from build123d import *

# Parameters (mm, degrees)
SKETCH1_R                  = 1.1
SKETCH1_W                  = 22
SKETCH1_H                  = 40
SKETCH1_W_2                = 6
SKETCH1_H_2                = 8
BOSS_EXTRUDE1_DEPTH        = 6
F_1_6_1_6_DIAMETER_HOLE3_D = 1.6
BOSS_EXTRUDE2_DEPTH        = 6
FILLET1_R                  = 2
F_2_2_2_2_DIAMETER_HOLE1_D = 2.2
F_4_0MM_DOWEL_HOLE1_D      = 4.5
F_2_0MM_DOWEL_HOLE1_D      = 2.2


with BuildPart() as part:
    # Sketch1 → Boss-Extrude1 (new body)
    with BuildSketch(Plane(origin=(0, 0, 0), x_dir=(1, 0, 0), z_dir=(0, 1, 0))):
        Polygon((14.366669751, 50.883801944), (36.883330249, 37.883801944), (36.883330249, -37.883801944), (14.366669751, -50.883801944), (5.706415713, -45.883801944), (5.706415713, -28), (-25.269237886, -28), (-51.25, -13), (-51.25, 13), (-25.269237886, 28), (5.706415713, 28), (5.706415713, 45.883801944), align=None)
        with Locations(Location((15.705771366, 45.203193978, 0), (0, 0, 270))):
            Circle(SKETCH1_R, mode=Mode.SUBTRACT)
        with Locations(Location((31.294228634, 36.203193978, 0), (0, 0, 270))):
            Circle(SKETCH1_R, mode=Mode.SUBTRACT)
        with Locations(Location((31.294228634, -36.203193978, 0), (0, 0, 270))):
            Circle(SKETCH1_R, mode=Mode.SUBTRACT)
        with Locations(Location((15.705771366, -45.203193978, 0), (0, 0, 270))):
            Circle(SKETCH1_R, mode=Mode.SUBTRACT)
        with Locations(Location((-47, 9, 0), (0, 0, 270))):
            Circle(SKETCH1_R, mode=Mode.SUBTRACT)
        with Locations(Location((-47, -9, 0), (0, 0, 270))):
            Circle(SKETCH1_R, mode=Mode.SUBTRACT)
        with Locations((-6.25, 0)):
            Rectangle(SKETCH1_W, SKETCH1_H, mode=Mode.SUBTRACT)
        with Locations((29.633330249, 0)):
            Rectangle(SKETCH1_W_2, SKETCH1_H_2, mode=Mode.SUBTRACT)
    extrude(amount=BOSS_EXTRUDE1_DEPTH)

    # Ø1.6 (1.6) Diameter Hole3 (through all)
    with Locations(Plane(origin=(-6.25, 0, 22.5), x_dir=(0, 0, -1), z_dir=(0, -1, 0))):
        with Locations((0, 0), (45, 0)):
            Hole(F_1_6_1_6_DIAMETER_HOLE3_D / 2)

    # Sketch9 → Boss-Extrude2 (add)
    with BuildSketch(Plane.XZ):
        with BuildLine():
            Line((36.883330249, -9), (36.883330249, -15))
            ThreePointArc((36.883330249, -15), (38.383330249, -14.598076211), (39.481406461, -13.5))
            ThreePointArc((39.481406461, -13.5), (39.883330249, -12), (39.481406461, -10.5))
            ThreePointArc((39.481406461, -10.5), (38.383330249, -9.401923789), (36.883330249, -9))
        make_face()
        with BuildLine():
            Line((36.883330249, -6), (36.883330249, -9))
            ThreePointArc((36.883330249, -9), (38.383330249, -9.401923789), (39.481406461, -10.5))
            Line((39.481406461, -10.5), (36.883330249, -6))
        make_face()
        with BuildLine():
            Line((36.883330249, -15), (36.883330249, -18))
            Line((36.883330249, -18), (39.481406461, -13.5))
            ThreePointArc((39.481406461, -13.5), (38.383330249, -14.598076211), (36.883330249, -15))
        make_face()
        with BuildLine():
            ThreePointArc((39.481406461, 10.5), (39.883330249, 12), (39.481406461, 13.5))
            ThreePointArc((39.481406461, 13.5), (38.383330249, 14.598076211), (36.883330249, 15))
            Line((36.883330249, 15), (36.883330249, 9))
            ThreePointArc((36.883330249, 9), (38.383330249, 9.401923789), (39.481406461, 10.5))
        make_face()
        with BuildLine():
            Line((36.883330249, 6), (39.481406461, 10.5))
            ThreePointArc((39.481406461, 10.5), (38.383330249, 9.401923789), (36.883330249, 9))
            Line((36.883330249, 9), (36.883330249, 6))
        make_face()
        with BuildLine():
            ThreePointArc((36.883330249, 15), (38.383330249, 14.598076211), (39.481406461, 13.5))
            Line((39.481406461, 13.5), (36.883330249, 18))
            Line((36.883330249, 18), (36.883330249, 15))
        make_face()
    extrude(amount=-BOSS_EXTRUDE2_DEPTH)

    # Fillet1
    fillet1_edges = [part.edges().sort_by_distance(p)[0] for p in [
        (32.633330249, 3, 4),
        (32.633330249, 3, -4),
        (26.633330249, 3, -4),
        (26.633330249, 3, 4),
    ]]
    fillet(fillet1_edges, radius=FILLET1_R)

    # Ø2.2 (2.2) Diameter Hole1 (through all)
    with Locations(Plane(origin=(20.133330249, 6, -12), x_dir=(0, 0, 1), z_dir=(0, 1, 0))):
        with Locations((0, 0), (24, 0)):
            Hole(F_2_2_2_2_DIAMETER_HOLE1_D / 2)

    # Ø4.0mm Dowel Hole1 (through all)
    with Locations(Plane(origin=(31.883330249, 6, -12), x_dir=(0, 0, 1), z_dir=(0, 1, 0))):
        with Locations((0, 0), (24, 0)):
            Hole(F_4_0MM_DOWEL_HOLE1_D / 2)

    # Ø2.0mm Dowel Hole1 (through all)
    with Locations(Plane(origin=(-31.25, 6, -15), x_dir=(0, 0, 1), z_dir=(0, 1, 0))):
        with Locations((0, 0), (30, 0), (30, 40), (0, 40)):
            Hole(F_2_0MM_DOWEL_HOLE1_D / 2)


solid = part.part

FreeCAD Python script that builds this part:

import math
import FreeCAD as App
import Part
import Sketcher
from FreeCAD import Vector
Q = App.Units.Quantity


def edges_at(feature, points):
    """Names of the edges that pass closest to the given points."""
    edges = feature.Shape.Edges
    near = lambda p: min(range(len(edges)), key=lambda i: edges[i].distToShape(Part.Vertex(*p))[0])
    return sorted({f"Edge{near(p) + 1}" for p in points})


def add_polygon(sketch, points):
    """Adds a closed chain of lines whose ends are joined by coincident constraints."""
    first, n = sketch.GeometryCount, len(points)
    for a, b in zip(points, points[1:] + points[:1]):
        sketch.addGeometry(Part.LineSegment(App.Vector(*a, 0), App.Vector(*b, 0)), False)
    for i in range(n):
        sketch.addConstraint(Sketcher.Constraint("Coincident", first + i, 2, first + (i + 1) % n, 1))

doc = App.newDocument("Part")
body = doc.addObject("PartDesign::Body", "Body")

sketch1 = body.newObject("Sketcher::SketchObject", "Sketch")
sketch1.AttachmentSupport = (doc.getObject("XZ_Plane"), [""])
sketch1.MapMode = "FlatFace"
add_polygon(sketch1, [(36.9, -37.9), (14.4, -50.9), (5.7, -45.9), (5.7, -28), (-25.3, -28), (-51.2, -13), (-51.2, 13), (-25.3, 28), (5.7, 28), (5.7, 45.9), (14.4, 50.9), (36.9, 37.9)])
sketch1.addGeometry(Part.Circle(Vector(31.3, 36.2, 0), Vector(0, 0, 1), 1.1), False)
sketch1.addGeometry(Part.Circle(Vector(15.7, 45.2, 0), Vector(0, 0, 1), 1.1), False)
sketch1.addGeometry(Part.Circle(Vector(-47, 9, 0), Vector(0, 0, 1), 1.1), False)
add_polygon(sketch1, [(26.6, 4), (26.6, -4), (32.6, -4), (32.6, 4)])
add_polygon(sketch1, [(-17.2, 20), (-17.2, -20), (4.8, -20), (4.8, 20)])
sketch1.addGeometry(Part.Circle(Vector(31.3, -36.2, 0), Vector(0, 0, 1), 1.1), False)
sketch1.addGeometry(Part.Circle(Vector(15.7, -45.2, 0), Vector(0, 0, 1), 1.1), False)
sketch1.addGeometry(Part.Circle(Vector(-47, -9, 0), Vector(0, 0, 1), 1.1), False)
sketch1.addConstraint(Sketcher.Constraint("Vertical", 2))
sketch1.addConstraint(Sketcher.Constraint("Horizontal", 3))
sketch1.addConstraint(Sketcher.Constraint("Vertical", 5))
sketch1.addConstraint(Sketcher.Constraint("Horizontal", 7))
sketch1.addConstraint(Sketcher.Constraint("Vertical", 8))
sketch1.addConstraint(Sketcher.Constraint("Vertical", 11))
sketch1.addConstraint(Sketcher.Constraint("Vertical", 15))
sketch1.addConstraint(Sketcher.Constraint("Horizontal", 16))
sketch1.addConstraint(Sketcher.Constraint("Vertical", 17))
sketch1.addConstraint(Sketcher.Constraint("Horizontal", 18))
sketch1.addConstraint(Sketcher.Constraint("Vertical", 19))
sketch1.addConstraint(Sketcher.Constraint("Horizontal", 20))
sketch1.addConstraint(Sketcher.Constraint("Vertical", 21))
sketch1.addConstraint(Sketcher.Constraint("Horizontal", 22))
sketch1.addConstraint(Sketcher.Constraint("Equal", 12, 13))
sketch1.addConstraint(Sketcher.Constraint("Equal", 13, 14))
sketch1.addConstraint(Sketcher.Constraint("Equal", 14, 23))
sketch1.addConstraint(Sketcher.Constraint("Equal", 23, 24))
sketch1.addConstraint(Sketcher.Constraint("Equal", 24, 25))
sketch1.addConstraint(Sketcher.Constraint("Symmetric", 12, 3, 23, 3, -1))
sketch1.addConstraint(Sketcher.Constraint("Symmetric", 13, 3, 24, 3, -1))
sketch1.addConstraint(Sketcher.Constraint("Symmetric", 14, 3, 25, 3, -1))
sketch1.addConstraint(Sketcher.Constraint("Symmetric", 3, 2, 6, 2, -1))
sketch1.addConstraint(Sketcher.Constraint("Symmetric", 1, 2, 8, 2, -1))
sketch1.addConstraint(Sketcher.Constraint("Symmetric", 0, 2, 9, 2, -1))
sketch1.addConstraint(Sketcher.Constraint("Parallel", 1, 4))
sketch1.addConstraint(Sketcher.Constraint("Parallel", 0, 6))
sketch1.addConstraint(Sketcher.Constraint("Parallel", 6, 9))
sketch1.addConstraint(Sketcher.Constraint("Parallel", 4, 10))
sketch1.addConstraint(Sketcher.Constraint("Diameter", 12, 2.2))
sketch1.addConstraint(Sketcher.Constraint("DistanceX", 16, 1, 16, 2, 6.0))
sketch1.addConstraint(Sketcher.Constraint("DistanceX", 20, 1, 20, 2, 22.0))
sketch1.addConstraint(Sketcher.Constraint("DistanceY", 5, 1, 5, 2, 26.0))
sketch1.addConstraint(Sketcher.Constraint("DistanceY", 15, 2, 15, 1, 8.0))
sketch1.addConstraint(Sketcher.Constraint("DistanceY", 19, 2, 19, 1, 40.0))
sketch1.addConstraint(Sketcher.Constraint("Angle", 0, Q("-150 deg")))
sketch1.addConstraint(Sketcher.Constraint("Distance", 0, 26.0))
sketch1.addConstraint(Sketcher.Constraint("Distance", 1, 10.0))
sketch1.addConstraint(Sketcher.Constraint("Distance", 4, 30.0))
sketch1.addConstraint(Sketcher.Constraint("DistanceX", 14, 3, -1, 1, 47.0))
sketch1.addConstraint(Sketcher.Constraint("DistanceY", -1, 1, 14, 3, 9.0))
sketch1.addConstraint(Sketcher.Constraint("DistanceY", 15, 2, -1, 1, 4.0))
sketch1.addConstraint(Sketcher.Constraint("DistanceY", 19, 2, -1, 1, 20.0))
sketch1.addConstraint(Sketcher.Constraint("DistanceY", 12, 3, 13, 3, 9.0))
sketch1.addConstraint(Sketcher.Constraint("DistanceX", 4, 2, 19, 2, 34.0))
sketch1.addConstraint(Sketcher.Constraint("DistanceX", 4, 2, -1, 1, 51.25))
sketch1.addConstraint(Sketcher.Constraint("DistanceX", 15, 2, 11, 2, 10.25))
sketch1.addConstraint(Sketcher.Constraint("DistanceY", 2, 1, 2, 2, 17.883802))
sketch1.addConstraint(Sketcher.Constraint("DistanceX", 0, 2, 24, 3, 1.339102))
sketch1.addConstraint(Sketcher.Constraint("DistanceX", 12, 3, 10, 2, 5.589102))
sketch1.addConstraint(Sketcher.Constraint("DistanceX", 3, 2, 3, 1, 30.975654))
sketch1.addConstraint(Sketcher.Constraint("DistanceY", -1, 1, 12, 3, 36.203194))
pad1 = body.newObject("PartDesign::Pad", "Pad")
pad1.Profile = sketch1
pad1.Length = 6
pad1.Reversed = True

sketch2 = body.newObject("Sketcher::SketchObject", "Sketch001")
sketch2.AttachmentSupport = (doc.getObject("XZ_Plane"), [""])
sketch2.MapMode = "FlatFace"
sketch2.addGeometry(Part.Circle(Vector(-6.2, 22.5, 0), Vector(0, 0, 1), 0.8), False)
sketch2.addGeometry(Part.Circle(Vector(-6.2, -22.5, 0), Vector(0, 0, 1), 0.8), False)
sketch2.addConstraint(Sketcher.Constraint("Equal", 0, 1))
sketch2.addConstraint(Sketcher.Constraint("Symmetric", 0, 3, 1, 3, -1))
sketch2.addConstraint(Sketcher.Constraint("Diameter", 0, 1.6))
sketch2.addConstraint(Sketcher.Constraint("DistanceY", 1, 3, 0, 3, 45.0))
sketch2.addConstraint(Sketcher.Constraint("DistanceX", 0, 3, -1, 1, 6.25))
doc.recompute()
hole = body.newObject("PartDesign::Hole", "Hole")
hole.Profile = sketch2
hole.ThreadType = "None"
hole.Diameter = 1.6
hole.DepthType = "ThroughAll"

sketch3 = body.newObject("Sketcher::SketchObject", "Sketch002")
sketch3.AttachmentSupport = (doc.getObject("XZ_Plane"), [""])
sketch3.MapMode = "FlatFace"
sketch3.addGeometry(Part.ArcOfCircle(Part.Circle(Vector(36.9, -12, 0), Vector(0, 0, 1), 3), math.radians(-30), math.radians(30)), False)
sketch3.addGeometry(Part.LineSegment(Vector(39.5, -10.5, 0), Vector(36.9, -6, 0)), False)
sketch3.addGeometry(Part.LineSegment(Vector(36.9, -6, 0), Vector(36.9, -18, 0)), False)
sketch3.addGeometry(Part.LineSegment(Vector(36.9, -18, 0), Vector(39.5, -13.5, 0)), False)
sketch3.addGeometry(Part.ArcOfCircle(Part.Circle(Vector(36.9, 12, 0), Vector(0, 0, 1), 3), math.radians(-30), math.radians(30)), False)
sketch3.addGeometry(Part.LineSegment(Vector(39.5, 13.5, 0), Vector(36.9, 18, 0)), False)
sketch3.addGeometry(Part.LineSegment(Vector(36.9, 18, 0), Vector(36.9, 6, 0)), False)
sketch3.addGeometry(Part.LineSegment(Vector(36.9, 6, 0), Vector(39.5, 10.5, 0)), False)
sketch3.addConstraint(Sketcher.Constraint("Tangent", 0, 2, 1, 1))
sketch3.addConstraint(Sketcher.Constraint("Coincident", 1, 2, 2, 1))
sketch3.addConstraint(Sketcher.Constraint("Coincident", 2, 2, 3, 1))
sketch3.addConstraint(Sketcher.Constraint("Tangent", 3, 2, 0, 1))
sketch3.addConstraint(Sketcher.Constraint("Tangent", 4, 2, 5, 1))
sketch3.addConstraint(Sketcher.Constraint("Coincident", 5, 2, 6, 1))
sketch3.addConstraint(Sketcher.Constraint("Coincident", 6, 2, 7, 1))
sketch3.addConstraint(Sketcher.Constraint("Tangent", 7, 2, 4, 1))
sketch3.addConstraint(Sketcher.Constraint("Vertical", 2))
sketch3.addConstraint(Sketcher.Constraint("Vertical", 6))
sketch3.addConstraint(Sketcher.Constraint("Equal", 0, 4))
sketch3.addConstraint(Sketcher.Constraint("Symmetric", 0, 3, 4, 3, -1))
sketch3.addConstraint(Sketcher.Constraint("Symmetric", 2, 2, 5, 2, -1))
sketch3.addConstraint(Sketcher.Constraint("Parallel", 1, 5))
sketch3.addConstraint(Sketcher.Constraint("Parallel", 3, 7))
sketch3.addConstraint(Sketcher.Constraint("Vertical", 4, 3, 1, 2))
sketch3.addConstraint(Sketcher.Constraint("Radius", 0, 3.0))
sketch3.addConstraint(Sketcher.Constraint("DistanceY", 2, 2, 2, 1, 12.0))
sketch3.addConstraint(Sketcher.Constraint("DistanceY", 0, 3, -1, 1, 12.0))
sketch3.addConstraint(Sketcher.Constraint("DistanceX", -1, 1, 0, 3, 36.88333))
pad2 = body.newObject("PartDesign::Pad", "Pad001")
pad2.Profile = sketch3
pad2.Length = 6
pad2.Reversed = True
doc.recompute()

fillet = body.newObject("PartDesign::Fillet", "Fillet")
fillet.Base = (pad2, edges_at(pad2, [
    (32.633, 3, 4),
    (32.633, 3, -4),
    (26.633, 3, -4),
    (26.633, 3, 4),
]))
fillet.Radius = 2

sketch4 = body.newObject("Sketcher::SketchObject", "Sketch003")
sketch4.AttachmentSupport = (doc.getObject("XZ_Plane"), [""])
sketch4.MapMode = "FlatFace"
sketch4.AttachmentOffset = App.Placement(Vector(0, 0, -6), App.Rotation())
sketch4.addGeometry(Part.Circle(Vector(20.1, -12, 0), Vector(0, 0, 1), 1.1), False)
sketch4.addGeometry(Part.Circle(Vector(20.1, 12, 0), Vector(0, 0, 1), 1.1), False)
sketch4.addConstraint(Sketcher.Constraint("Equal", 0, 1))
sketch4.addConstraint(Sketcher.Constraint("Symmetric", 0, 3, 1, 3, -1))
sketch4.addConstraint(Sketcher.Constraint("Diameter", 0, 2.2))
sketch4.addConstraint(Sketcher.Constraint("DistanceY", 0, 3, -1, 1, 12.0))
sketch4.addConstraint(Sketcher.Constraint("DistanceX", -1, 1, 0, 3, 20.13333))
doc.recompute()
hole2 = body.newObject("PartDesign::Hole", "Hole001")
hole2.Profile = sketch4
hole2.ThreadType = "None"
hole2.Diameter = 2.2
hole2.DepthType = "ThroughAll"
hole2.Reversed = True

sketch5 = body.newObject("Sketcher::SketchObject", "Sketch004")
sketch5.AttachmentSupport = (doc.getObject("XZ_Plane"), [""])
sketch5.MapMode = "FlatFace"
sketch5.AttachmentOffset = App.Placement(Vector(0, 0, -6), App.Rotation())
sketch5.addGeometry(Part.Circle(Vector(31.9, -12, 0), Vector(0, 0, 1), 2.2), False)
sketch5.addGeometry(Part.Circle(Vector(31.9, 12, 0), Vector(0, 0, 1), 2.2), False)
sketch5.addConstraint(Sketcher.Constraint("Equal", 0, 1))
sketch5.addConstraint(Sketcher.Constraint("Symmetric", 0, 3, 1, 3, -1))
sketch5.addConstraint(Sketcher.Constraint("Diameter", 0, 4.5))
sketch5.addConstraint(Sketcher.Constraint("DistanceY", 0, 3, -1, 1, 12.0))
sketch5.addConstraint(Sketcher.Constraint("DistanceX", -1, 1, 0, 3, 31.88333))
doc.recompute()
hole3 = body.newObject("PartDesign::Hole", "Hole002")
hole3.Profile = sketch5
hole3.ThreadType = "None"
hole3.Diameter = 4.5
hole3.DepthType = "ThroughAll"
hole3.Reversed = True

sketch6 = body.newObject("Sketcher::SketchObject", "Sketch005")
sketch6.AttachmentSupport = (doc.getObject("XZ_Plane"), [""])
sketch6.MapMode = "FlatFace"
sketch6.AttachmentOffset = App.Placement(Vector(0, 0, -6), App.Rotation())
sketch6.addGeometry(Part.Circle(Vector(-31.2, -15, 0), Vector(0, 0, 1), 1.1), False)
sketch6.addGeometry(Part.Circle(Vector(-31.2, 15, 0), Vector(0, 0, 1), 1.1), False)
sketch6.addGeometry(Part.Circle(Vector(8.8, 15, 0), Vector(0, 0, 1), 1.1), False)
sketch6.addGeometry(Part.Circle(Vector(8.8, -15, 0), Vector(0, 0, 1), 1.1), False)
sketch6.addConstraint(Sketcher.Constraint("Equal", 0, 1))
sketch6.addConstraint(Sketcher.Constraint("Equal", 1, 2))
sketch6.addConstraint(Sketcher.Constraint("Equal", 2, 3))
sketch6.addConstraint(Sketcher.Constraint("Symmetric", 0, 3, 1, 3, -1))
sketch6.addConstraint(Sketcher.Constraint("Symmetric", 2, 3, 3, 3, -1))
sketch6.addConstraint(Sketcher.Constraint("Horizontal", 1, 3, 2, 3))
sketch6.addConstraint(Sketcher.Constraint("Diameter", 0, 2.2))
sketch6.addConstraint(Sketcher.Constraint("DistanceY", 0, 3, -1, 1, 15.0))
sketch6.addConstraint(Sketcher.Constraint("DistanceX", 1, 3, 2, 3, 40.0))
sketch6.addConstraint(Sketcher.Constraint("DistanceX", 0, 3, -1, 1, 31.25))
doc.recompute()
hole4 = body.newObject("PartDesign::Hole", "Hole003")
hole4.Profile = sketch6
hole4.ThreadType = "None"
hole4.Diameter = 2.2
hole4.DepthType = "ThroughAll"
hole4.Reversed = True

doc.recompute()
